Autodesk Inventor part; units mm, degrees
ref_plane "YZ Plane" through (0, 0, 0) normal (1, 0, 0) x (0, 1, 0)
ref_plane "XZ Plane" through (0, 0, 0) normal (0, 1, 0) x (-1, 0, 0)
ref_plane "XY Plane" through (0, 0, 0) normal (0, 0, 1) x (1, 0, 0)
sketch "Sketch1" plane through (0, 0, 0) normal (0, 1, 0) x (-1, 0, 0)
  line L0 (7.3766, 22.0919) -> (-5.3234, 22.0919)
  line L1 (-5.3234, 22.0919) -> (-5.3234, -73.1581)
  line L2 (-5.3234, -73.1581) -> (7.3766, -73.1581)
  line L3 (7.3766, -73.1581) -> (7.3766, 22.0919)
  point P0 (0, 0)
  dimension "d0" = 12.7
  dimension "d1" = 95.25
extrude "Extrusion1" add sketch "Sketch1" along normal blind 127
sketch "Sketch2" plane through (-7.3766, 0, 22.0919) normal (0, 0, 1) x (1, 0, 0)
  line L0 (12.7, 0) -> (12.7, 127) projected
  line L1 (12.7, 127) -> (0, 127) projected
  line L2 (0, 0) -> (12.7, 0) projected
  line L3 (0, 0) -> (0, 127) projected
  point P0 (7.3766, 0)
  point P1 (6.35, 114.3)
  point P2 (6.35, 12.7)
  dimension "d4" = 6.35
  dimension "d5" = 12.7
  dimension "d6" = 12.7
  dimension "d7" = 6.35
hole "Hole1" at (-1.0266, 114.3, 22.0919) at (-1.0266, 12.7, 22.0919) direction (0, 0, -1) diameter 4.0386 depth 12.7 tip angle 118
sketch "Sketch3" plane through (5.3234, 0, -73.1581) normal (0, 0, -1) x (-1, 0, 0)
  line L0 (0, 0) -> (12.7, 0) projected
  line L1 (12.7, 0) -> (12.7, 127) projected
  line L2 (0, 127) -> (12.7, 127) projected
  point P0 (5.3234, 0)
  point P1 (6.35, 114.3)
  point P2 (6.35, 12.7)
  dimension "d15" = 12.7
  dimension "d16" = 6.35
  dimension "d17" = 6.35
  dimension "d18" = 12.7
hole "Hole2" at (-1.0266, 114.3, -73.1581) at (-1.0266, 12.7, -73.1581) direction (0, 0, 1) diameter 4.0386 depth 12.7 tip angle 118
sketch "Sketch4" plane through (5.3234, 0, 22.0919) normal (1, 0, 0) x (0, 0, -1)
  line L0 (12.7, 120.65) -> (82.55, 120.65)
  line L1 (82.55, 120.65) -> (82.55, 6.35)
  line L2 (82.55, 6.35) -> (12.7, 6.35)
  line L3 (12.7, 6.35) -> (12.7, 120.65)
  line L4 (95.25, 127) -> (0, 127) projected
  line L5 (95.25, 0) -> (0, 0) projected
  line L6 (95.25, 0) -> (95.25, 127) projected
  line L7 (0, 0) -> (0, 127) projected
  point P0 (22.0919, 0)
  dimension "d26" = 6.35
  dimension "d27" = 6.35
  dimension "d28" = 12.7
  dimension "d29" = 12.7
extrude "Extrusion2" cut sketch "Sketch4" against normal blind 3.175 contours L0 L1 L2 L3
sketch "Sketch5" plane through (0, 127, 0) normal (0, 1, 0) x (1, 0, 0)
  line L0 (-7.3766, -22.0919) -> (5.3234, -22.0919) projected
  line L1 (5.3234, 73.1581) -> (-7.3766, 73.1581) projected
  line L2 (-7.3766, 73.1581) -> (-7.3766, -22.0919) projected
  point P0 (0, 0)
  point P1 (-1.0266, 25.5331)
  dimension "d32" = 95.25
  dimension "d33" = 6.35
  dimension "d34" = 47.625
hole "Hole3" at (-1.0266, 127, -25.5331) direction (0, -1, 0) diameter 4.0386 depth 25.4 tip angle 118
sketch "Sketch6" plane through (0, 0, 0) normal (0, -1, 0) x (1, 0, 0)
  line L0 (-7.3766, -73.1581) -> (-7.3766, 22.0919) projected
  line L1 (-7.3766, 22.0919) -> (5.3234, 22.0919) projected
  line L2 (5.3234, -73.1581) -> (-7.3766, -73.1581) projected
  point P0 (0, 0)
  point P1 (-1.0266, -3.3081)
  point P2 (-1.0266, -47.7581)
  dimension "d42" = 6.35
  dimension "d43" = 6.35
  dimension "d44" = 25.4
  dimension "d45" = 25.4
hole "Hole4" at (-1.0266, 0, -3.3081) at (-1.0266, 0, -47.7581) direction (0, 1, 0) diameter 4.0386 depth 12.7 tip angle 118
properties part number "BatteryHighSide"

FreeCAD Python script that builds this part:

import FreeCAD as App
import Part
import Sketcher

V = App.Vector
Q = App.Units.Quantity

doc = App.newDocument("Part")
body = doc.addObject("PartDesign::Body", "Body")

sketch1 = doc.addObject("Sketcher::SketchObject", "Sketch")
body.addObject(sketch1)
sketch1.AttachmentSupport = (doc.XZ_Plane, [""])
sketch1.MapMode = "FlatFace"
sketch1.addGeometry([
    Part.LineSegment(V(-7, -73, 0), V(-7, 22, 0)),
    Part.LineSegment(V(-7, 22, 0), V(5, 22, 0)),
    Part.LineSegment(V(5, 22, 0), V(5, -73, 0)),
    Part.LineSegment(V(5, -73, 0), V(-7, -73, 0)),
], False)
sketch1.addConstraint([
    Sketcher.Constraint("Coincident", 0, 2, 1, 1),
    Sketcher.Constraint("Coincident", 1, 2, 2, 1),
    Sketcher.Constraint("Coincident", 2, 2, 3, 1),
    Sketcher.Constraint("Coincident", 3, 2, 0, 1),
    Sketcher.Constraint("Vertical", 0),
    Sketcher.Constraint("Horizontal", 1),
    Sketcher.Constraint("Vertical", 2),
    Sketcher.Constraint("Horizontal", 3),
    Sketcher.Constraint("DistanceX", 1, 1, 1, 2, Q("0.5 in")),
    Sketcher.Constraint("DistanceY", 0, 1, 0, 2, Q("3.75 in")),
    Sketcher.Constraint("DistanceX", 0, 2, -1, 1, Q("7.3766 mm")),
    Sketcher.Constraint("DistanceY", -1, 1, 0, 2, Q("22.092 mm")),
])
pad1 = doc.addObject("PartDesign::Pad", "Pad")
body.addObject(pad1)
pad1.Profile = sketch1
pad1.Length = Q("5 in")
pad1.Reversed = True

sketch2 = doc.addObject("Sketcher::SketchObject", "Sketch001")
body.addObject(sketch2)
sketch2.AttachmentSupport = (doc.XY_Plane, [""])
sketch2.MapMode = "FlatFace"
sketch2.AttachmentOffset = App.Placement(V(0, 0, 22.0919), App.Rotation())
sketch2.addGeometry([
    Part.Circle(V(-1, 114.3, 0), V(0, 0, 1), 2),
    Part.Circle(V(-1, 12.7, 0), V(0, 0, 1), 2),
], False)
sketch2.addConstraint([
    Sketcher.Constraint("Equal", 0, 1),
    Sketcher.Constraint("Vertical", 0, 3, 1, 3),
    Sketcher.Constraint("Diameter", 0, Q("0.159 in")),
    Sketcher.Constraint("DistanceY", 1, 3, 0, 3, Q("4 in")),
    Sketcher.Constraint("DistanceY", -1, 1, 0, 3, Q("4.5 in")),
    Sketcher.Constraint("DistanceX", 0, 3, -1, 1, Q("1.0266 mm")),
])
doc.recompute()
hole = doc.addObject("PartDesign::Hole", "Hole")
body.addObject(hole)
hole.Profile = sketch2
hole.ThreadType = "None"
hole.Diameter = Q("0.159 in")
hole.DepthType = "Dimension"
hole.Depth = Q("0.5 in")
hole.DrillPoint = "Angled"
hole.DrillPointAngle = 118

sketch3 = doc.addObject("Sketcher::SketchObject", "Sketch002")
body.addObject(sketch3)
sketch3.AttachmentSupport = (doc.XY_Plane, [""])
sketch3.MapMode = "FlatFace"
sketch3.AttachmentOffset = App.Placement(V(0, 0, -73.1581), App.Rotation())
sketch3.addGeometry([
    Part.Circle(V(-1, 114.3, 0), V(0, 0, 1), 2),
    Part.Circle(V(-1, 12.7, 0), V(0, 0, 1), 2),
], False)
sketch3.addConstraint([
    Sketcher.Constraint("Equal", 0, 1),
    Sketcher.Constraint("Vertical", 0, 3, 1, 3),
    Sketcher.Constraint("Diameter", 0, Q("0.159 in")),
    Sketcher.Constraint("DistanceY", 1, 3, 0, 3, Q("4 in")),
    Sketcher.Constraint("DistanceY", -1, 1, 0, 3, Q("4.5 in")),
    Sketcher.Constraint("DistanceX", 0, 3, -1, 1, Q("1.0266 mm")),
])
doc.recompute()
hole2 = doc.addObject("PartDesign::Hole", "Hole001")
body.addObject(hole2)
hole2.Profile = sketch3
hole2.ThreadType = "None"
hole2.Diameter = Q("0.159 in")
hole2.DepthType = "Dimension"
hole2.Depth = Q("0.5 in")
hole2.DrillPoint = "Angled"
hole2.DrillPointAngle = 118
hole2.Reversed = True

sketch4 = doc.addObject("Sketcher::SketchObject", "Sketch003")
body.addObject(sketch4)
sketch4.AttachmentSupport = (doc.YZ_Plane, [""])
sketch4.MapMode = "FlatFace"
sketch4.AttachmentOffset = App.Placement(V(0, 0, 5.3234), App.Rotation())
sketch4.addGeometry([
    Part.LineSegment(V(121, -60, 0), V(121, 9, 0)),
    Part.LineSegment(V(121, 9, 0), V(6, 9, 0)),
    Part.LineSegment(V(6, 9, 0), V(6, -60, 0)),
    Part.LineSegment(V(6, -60, 0), V(121, -60, 0)),
], False)
sketch4.addConstraint([
    Sketcher.Constraint("Coincident", 0, 2, 1, 1),
    Sketcher.Constraint("Coincident", 1, 2, 2, 1),
    Sketcher.Constraint("Coincident", 2, 2, 3, 1),
    Sketcher.Constraint("Coincident", 3, 2, 0, 1),
    Sketcher.Constraint("Vertical", 0),
    Sketcher.Constraint("Horizontal", 1),
    Sketcher.Constraint("Vertical", 2),
    Sketcher.Constraint("Horizontal", 3),
    Sketcher.Constraint("DistanceX", -1, 1, 1, 2, Q("0.25 in")),
    Sketcher.Constraint("DistanceX", 1, 2, 1, 1, Q("4.5 in")),
    Sketcher.Constraint("DistanceY", 0, 1, 0, 2, Q("2.75 in")),
    Sketcher.Constraint("DistanceY", -1, 1, 0, 2, Q("9.392 mm")),
])
pocket1 = doc.addObject("PartDesign::Pocket", "Pocket")
body.addObject(pocket1)
pocket1.Profile = sketch4
pocket1.Length = Q("0.125 in")

sketch5 = doc.addObject("Sketcher::SketchObject", "Sketch004")
body.addObject(sketch5)
sketch5.AttachmentSupport = (doc.XZ_Plane, [""])
sketch5.MapMode = "FlatFace"
sketch5.AttachmentOffset = App.Placement(V(0, 0, -5 * 25.4), App.Rotation())
sketch5.addGeometry(Part.Circle(V(-1, -25.5, 0), V(0, 0, 1), 2), False)
sketch5.addConstraint([
    Sketcher.Constraint("Diameter", 0, Q("0.159 in")),
    Sketcher.Constraint("DistanceX", 0, 3, -1, 1, Q("1.0266 mm")),
    Sketcher.Constraint("DistanceY", 0, 3, -1, 1, Q("25.533 mm")),
])
doc.recompute()
hole3 = doc.addObject("PartDesign::Hole", "Hole002")
body.addObject(hole3)
hole3.Profile = sketch5
hole3.ThreadType = "None"
hole3.Diameter = Q("0.159 in")
hole3.DepthType = "Dimension"
hole3.Depth = Q("1 in")
hole3.DrillPoint = "Angled"
hole3.DrillPointAngle = 118
hole3.Reversed = True

sketch6 = doc.addObject("Sketcher::SketchObject", "Sketch005")
body.addObject(sketch6)
sketch6.AttachmentSupport = (doc.XZ_Plane, [""])
sketch6.MapMode = "FlatFace"
sketch6.addGeometry([
    Part.Circle(V(-1, -3.3, 0), V(0, 0, 1), 2),
    Part.Circle(V(-1, -47.8, 0), V(0, 0, 1), 2),
], False)
sketch6.addConstraint([
    Sketcher.Constraint("Equal", 0, 1),
    Sketcher.Constraint("Vertical", 0, 3, 1, 3),
    Sketcher.Constraint("Diameter", 0, Q("0.159 in")),
    Sketcher.Constraint("DistanceY", 1, 3, 0, 3, Q("1.75 in")),
    Sketcher.Constraint("DistanceX", 0, 3, -1, 1, Q("1.0266 mm")),
    Sketcher.Constraint("DistanceY", 0, 3, -1, 1, Q("3.308 mm")),
])
doc.recompute()
hole4 = doc.addObject("PartDesign::Hole", "Hole003")
body.addObject(hole4)
hole4.Profile = sketch6
hole4.ThreadType = "None"
hole4.Diameter = Q("0.159 in")
hole4.DepthType = "Dimension"
hole4.Depth = Q("0.5 in")
hole4.DrillPoint = "Angled"
hole4.DrillPointAngle = 118

doc.recompute()
